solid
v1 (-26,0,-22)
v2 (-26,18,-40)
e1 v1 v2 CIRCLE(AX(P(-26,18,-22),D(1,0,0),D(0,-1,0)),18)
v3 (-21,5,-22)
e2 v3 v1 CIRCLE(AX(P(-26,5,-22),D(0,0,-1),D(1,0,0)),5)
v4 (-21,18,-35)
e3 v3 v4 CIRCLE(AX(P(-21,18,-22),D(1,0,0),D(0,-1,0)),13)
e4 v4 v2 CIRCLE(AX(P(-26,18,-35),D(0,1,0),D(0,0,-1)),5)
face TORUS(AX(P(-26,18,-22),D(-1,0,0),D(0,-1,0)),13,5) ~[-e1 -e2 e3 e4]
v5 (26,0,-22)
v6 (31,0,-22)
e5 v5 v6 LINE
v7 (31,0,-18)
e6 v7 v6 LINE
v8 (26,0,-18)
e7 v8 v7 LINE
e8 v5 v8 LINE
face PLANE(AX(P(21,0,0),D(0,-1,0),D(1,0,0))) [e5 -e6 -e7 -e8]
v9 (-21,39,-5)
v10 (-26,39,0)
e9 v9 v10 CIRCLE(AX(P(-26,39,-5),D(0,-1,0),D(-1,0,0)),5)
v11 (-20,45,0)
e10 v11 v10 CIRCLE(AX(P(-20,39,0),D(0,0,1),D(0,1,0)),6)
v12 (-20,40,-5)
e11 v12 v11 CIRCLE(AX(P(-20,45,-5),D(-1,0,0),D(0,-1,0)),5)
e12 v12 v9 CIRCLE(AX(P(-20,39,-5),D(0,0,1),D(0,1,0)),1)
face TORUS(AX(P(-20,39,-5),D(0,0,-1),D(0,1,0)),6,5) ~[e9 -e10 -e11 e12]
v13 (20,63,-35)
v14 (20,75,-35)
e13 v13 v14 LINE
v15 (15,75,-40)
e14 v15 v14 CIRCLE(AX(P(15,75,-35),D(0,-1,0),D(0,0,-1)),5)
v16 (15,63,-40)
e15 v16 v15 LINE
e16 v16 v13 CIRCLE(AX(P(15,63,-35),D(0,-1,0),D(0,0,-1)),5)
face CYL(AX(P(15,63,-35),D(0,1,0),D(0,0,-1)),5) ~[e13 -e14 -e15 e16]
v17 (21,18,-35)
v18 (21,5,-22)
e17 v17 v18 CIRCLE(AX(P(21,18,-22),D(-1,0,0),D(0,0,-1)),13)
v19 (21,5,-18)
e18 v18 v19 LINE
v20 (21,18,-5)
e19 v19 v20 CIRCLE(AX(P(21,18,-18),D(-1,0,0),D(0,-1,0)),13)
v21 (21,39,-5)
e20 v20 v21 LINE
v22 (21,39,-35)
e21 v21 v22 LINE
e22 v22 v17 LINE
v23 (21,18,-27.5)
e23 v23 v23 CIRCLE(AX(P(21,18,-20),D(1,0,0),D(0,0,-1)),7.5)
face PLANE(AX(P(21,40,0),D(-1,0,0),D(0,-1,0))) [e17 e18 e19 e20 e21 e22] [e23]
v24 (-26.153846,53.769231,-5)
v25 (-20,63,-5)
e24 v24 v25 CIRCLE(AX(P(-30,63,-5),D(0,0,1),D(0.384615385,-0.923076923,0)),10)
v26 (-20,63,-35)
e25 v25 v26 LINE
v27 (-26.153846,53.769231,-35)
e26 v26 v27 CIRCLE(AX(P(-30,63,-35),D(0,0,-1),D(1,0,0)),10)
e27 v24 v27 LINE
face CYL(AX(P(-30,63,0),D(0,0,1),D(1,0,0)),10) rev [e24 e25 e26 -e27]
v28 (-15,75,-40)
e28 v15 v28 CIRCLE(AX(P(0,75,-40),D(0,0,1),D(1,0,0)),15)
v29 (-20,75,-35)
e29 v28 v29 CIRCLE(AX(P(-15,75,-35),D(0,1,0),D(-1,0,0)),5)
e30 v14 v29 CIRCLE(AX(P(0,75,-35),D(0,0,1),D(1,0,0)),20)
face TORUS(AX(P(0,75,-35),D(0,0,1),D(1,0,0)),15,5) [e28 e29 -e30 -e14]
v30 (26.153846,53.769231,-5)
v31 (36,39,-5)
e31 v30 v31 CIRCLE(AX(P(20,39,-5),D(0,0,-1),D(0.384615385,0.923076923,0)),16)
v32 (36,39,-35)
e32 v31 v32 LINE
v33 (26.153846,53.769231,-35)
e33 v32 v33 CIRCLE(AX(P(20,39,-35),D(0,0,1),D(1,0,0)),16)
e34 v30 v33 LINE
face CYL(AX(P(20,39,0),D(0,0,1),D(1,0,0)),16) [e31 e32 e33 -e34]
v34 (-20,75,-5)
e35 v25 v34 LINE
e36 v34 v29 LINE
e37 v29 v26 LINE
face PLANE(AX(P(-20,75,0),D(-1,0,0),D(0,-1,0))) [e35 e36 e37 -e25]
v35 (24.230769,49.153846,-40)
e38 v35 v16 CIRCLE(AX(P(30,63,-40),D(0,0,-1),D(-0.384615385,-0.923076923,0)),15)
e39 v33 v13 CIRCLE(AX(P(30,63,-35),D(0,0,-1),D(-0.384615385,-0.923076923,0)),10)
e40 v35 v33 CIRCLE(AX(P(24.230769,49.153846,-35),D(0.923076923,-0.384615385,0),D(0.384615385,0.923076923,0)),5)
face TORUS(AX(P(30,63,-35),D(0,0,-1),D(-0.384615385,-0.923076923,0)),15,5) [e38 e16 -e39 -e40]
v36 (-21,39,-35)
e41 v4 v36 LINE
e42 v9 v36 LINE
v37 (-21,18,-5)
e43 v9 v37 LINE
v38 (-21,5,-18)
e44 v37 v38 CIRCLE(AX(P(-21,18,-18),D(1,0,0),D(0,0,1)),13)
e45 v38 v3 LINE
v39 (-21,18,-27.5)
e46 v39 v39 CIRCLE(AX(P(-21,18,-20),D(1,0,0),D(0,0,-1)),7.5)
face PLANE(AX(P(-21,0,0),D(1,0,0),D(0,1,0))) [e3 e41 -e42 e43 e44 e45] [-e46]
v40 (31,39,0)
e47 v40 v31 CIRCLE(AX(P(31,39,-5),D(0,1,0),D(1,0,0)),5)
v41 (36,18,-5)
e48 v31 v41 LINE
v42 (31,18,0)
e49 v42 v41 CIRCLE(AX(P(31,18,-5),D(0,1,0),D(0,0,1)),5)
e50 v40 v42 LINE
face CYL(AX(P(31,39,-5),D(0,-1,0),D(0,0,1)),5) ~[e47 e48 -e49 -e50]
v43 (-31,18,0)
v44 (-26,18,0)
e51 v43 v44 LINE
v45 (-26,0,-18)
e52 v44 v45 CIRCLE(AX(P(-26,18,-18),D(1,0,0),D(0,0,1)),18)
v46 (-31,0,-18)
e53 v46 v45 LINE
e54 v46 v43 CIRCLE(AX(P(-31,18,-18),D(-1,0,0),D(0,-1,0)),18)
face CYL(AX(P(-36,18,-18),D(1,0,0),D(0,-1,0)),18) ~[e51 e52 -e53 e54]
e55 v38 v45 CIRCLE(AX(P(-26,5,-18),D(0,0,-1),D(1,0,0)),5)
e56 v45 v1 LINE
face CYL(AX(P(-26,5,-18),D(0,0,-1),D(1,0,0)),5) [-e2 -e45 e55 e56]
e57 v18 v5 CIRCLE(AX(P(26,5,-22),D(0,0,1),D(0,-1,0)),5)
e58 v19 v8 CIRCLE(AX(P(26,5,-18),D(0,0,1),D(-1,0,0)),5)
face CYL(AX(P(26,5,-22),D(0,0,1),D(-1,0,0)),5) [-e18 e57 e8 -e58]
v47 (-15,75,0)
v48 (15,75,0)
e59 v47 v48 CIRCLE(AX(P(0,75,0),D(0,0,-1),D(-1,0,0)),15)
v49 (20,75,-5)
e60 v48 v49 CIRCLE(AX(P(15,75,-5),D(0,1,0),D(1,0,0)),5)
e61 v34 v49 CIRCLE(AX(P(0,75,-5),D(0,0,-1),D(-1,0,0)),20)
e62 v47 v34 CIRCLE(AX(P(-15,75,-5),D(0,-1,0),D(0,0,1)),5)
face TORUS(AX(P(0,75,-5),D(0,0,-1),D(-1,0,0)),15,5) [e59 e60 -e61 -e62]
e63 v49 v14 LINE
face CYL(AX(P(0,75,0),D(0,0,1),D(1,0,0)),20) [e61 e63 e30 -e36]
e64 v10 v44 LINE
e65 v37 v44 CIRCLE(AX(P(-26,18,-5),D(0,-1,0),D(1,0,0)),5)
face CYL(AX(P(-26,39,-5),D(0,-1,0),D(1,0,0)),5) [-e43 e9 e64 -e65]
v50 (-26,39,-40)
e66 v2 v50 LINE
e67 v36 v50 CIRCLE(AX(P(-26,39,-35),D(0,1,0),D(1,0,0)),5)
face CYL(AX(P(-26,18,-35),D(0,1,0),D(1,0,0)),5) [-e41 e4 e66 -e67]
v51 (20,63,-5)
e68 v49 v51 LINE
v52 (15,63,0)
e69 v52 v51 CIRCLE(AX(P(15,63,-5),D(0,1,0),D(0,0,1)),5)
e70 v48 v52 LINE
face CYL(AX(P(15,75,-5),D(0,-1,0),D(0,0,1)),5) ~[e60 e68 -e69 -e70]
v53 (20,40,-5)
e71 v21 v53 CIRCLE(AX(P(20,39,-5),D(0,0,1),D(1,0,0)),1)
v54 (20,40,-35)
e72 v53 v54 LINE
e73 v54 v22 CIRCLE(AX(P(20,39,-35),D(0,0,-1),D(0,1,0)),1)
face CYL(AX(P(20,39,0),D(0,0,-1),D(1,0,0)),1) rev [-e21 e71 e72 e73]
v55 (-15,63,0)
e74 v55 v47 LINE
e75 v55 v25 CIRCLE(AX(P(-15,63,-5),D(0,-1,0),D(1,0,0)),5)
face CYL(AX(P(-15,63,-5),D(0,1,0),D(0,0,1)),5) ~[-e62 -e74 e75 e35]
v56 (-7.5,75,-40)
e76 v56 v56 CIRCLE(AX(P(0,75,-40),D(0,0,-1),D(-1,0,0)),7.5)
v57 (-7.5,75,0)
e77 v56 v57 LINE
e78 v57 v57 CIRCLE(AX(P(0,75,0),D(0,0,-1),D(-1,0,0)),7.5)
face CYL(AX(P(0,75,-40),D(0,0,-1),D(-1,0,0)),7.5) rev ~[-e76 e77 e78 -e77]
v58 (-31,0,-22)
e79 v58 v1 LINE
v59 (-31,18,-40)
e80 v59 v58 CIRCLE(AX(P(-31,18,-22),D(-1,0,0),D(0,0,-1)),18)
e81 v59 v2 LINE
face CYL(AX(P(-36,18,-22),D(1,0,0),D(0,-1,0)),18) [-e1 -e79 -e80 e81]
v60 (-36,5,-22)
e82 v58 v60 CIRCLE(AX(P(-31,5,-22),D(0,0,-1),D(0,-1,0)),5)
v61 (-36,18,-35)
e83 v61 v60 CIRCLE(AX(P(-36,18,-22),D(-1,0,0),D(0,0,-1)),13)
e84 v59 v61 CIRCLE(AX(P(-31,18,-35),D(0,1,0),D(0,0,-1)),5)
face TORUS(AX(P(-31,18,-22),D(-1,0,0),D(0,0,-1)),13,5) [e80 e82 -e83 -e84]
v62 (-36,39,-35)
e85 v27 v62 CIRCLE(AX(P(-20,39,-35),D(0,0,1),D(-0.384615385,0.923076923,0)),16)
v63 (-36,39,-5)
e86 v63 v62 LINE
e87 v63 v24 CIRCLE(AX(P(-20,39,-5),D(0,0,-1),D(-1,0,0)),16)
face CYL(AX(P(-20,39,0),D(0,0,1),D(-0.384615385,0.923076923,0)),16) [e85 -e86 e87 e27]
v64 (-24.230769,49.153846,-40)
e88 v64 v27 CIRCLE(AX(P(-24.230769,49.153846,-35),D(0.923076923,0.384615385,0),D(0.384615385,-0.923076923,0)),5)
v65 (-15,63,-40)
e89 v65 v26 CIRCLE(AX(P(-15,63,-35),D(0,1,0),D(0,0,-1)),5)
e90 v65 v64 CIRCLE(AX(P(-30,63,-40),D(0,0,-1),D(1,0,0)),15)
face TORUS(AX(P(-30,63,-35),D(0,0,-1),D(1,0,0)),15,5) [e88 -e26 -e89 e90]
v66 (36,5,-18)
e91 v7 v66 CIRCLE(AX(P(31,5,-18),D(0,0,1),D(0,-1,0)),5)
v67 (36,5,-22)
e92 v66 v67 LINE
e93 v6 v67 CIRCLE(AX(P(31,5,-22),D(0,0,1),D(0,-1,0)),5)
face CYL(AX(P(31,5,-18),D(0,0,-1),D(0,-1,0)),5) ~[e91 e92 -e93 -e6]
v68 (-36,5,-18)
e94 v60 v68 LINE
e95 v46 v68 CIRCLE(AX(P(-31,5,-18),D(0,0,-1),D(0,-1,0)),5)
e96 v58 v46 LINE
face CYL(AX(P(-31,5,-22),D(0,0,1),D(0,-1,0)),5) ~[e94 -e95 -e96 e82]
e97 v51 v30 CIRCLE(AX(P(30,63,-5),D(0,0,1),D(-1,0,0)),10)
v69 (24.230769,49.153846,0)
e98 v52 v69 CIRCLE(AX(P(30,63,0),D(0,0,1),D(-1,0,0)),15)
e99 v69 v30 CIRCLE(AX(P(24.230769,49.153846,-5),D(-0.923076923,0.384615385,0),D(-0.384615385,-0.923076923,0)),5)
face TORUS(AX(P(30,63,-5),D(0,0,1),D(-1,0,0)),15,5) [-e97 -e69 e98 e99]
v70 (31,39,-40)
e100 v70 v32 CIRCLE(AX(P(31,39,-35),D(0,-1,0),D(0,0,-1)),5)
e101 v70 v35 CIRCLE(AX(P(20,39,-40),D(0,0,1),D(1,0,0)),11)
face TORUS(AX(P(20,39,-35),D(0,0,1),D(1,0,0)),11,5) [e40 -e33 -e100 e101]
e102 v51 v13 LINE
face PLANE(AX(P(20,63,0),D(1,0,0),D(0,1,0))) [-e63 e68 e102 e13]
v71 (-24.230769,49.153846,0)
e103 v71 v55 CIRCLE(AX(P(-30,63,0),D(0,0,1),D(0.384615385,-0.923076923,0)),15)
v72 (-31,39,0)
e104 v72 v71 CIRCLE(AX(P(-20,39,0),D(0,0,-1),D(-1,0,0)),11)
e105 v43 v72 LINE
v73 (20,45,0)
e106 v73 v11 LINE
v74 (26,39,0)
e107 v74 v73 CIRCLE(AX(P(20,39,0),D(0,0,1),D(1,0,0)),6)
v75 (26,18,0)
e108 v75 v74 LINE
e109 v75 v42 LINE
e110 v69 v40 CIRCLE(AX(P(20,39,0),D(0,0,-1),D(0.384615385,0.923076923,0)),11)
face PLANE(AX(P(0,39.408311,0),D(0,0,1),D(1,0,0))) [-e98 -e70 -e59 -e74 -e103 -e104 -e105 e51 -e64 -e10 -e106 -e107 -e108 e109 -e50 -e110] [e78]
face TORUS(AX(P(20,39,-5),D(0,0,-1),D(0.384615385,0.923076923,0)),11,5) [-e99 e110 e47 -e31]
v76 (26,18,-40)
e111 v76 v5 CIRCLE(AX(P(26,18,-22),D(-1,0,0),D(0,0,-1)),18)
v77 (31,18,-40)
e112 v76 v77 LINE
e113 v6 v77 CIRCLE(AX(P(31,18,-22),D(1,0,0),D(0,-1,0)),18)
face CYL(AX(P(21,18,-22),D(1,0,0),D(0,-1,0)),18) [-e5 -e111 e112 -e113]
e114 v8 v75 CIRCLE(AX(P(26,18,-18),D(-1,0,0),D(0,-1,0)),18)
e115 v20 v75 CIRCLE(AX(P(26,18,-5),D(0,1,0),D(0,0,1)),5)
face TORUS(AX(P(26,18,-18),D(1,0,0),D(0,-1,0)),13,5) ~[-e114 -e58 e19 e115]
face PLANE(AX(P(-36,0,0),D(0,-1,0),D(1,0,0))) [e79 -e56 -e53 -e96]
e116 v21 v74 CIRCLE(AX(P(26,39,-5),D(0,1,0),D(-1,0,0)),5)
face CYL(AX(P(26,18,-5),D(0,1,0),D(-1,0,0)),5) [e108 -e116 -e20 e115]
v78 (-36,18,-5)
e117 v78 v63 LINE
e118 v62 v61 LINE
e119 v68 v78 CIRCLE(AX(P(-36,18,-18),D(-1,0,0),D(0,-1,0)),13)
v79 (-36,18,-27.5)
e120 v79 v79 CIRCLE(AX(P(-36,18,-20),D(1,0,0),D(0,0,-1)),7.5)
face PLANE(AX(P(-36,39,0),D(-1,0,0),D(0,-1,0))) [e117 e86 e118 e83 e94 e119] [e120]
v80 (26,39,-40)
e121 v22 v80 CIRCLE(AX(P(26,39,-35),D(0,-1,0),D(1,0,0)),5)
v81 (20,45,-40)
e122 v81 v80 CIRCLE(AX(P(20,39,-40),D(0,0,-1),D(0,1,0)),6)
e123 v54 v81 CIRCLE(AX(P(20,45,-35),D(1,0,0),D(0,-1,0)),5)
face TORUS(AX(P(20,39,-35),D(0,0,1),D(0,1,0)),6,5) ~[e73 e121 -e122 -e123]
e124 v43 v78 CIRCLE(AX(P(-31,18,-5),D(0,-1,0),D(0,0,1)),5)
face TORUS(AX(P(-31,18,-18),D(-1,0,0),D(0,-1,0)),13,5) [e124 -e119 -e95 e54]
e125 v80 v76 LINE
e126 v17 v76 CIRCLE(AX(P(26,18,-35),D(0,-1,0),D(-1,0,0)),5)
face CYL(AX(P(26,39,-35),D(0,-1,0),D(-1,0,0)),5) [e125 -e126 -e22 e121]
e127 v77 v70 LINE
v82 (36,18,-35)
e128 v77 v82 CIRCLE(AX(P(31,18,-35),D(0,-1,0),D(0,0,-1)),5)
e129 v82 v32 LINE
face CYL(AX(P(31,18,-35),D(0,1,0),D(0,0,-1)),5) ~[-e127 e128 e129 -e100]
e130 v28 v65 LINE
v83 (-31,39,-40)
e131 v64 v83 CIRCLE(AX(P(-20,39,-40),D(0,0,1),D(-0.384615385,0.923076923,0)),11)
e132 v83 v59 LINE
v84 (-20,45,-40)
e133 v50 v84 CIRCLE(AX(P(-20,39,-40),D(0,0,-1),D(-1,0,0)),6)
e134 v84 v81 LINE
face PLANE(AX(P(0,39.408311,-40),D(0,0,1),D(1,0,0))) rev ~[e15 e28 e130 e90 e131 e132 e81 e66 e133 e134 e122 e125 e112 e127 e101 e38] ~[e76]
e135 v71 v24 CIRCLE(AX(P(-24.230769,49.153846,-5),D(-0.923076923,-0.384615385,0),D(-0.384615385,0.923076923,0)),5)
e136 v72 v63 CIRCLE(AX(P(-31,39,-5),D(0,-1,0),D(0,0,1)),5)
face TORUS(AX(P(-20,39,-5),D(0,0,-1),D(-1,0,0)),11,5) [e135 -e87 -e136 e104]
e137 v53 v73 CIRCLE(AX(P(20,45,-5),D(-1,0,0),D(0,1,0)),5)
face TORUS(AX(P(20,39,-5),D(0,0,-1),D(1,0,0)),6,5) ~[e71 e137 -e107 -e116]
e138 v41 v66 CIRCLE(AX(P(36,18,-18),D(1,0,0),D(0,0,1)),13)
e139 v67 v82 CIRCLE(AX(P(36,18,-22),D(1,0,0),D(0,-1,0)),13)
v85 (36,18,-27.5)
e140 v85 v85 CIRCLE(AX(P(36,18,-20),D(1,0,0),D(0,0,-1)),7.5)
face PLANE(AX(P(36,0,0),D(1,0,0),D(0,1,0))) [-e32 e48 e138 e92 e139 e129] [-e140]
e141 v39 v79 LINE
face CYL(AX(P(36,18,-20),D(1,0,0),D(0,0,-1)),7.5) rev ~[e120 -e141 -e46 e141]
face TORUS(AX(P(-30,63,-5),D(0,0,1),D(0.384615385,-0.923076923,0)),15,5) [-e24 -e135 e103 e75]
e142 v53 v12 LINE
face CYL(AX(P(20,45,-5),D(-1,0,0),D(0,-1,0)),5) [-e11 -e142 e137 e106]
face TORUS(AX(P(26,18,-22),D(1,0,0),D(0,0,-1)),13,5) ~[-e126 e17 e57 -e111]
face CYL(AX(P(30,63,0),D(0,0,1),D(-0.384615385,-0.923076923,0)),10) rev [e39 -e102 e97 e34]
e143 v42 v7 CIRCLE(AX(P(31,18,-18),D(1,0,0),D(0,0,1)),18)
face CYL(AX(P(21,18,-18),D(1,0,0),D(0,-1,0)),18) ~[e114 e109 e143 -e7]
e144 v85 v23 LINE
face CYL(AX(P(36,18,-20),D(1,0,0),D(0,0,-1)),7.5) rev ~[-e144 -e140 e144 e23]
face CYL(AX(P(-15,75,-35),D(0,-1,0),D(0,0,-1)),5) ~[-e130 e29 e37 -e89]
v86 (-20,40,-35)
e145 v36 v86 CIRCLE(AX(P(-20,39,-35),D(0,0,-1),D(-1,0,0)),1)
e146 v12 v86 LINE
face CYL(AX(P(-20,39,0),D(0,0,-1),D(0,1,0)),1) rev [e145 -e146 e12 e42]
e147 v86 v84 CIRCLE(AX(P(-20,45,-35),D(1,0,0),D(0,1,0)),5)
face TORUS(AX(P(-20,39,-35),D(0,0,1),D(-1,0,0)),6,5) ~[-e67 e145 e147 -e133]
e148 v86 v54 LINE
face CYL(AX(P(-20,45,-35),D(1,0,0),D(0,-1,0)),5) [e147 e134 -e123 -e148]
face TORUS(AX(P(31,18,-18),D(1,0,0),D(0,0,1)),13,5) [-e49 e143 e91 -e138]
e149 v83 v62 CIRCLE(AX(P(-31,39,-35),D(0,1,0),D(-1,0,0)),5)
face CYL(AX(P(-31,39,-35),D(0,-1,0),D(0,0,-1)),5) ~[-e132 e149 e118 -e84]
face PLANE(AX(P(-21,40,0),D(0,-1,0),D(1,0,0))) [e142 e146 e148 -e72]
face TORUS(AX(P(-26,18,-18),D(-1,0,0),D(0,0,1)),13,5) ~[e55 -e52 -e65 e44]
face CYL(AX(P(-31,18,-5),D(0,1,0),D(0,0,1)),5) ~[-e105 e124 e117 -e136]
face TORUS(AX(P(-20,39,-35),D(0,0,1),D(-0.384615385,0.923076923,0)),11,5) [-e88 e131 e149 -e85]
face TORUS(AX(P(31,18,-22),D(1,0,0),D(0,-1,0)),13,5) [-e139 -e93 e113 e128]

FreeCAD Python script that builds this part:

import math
import FreeCAD as App
import Part
import Sketcher
from FreeCAD import Vector


def edges_at(feature, points):
    """Names of the edges that pass closest to the given points."""
    edges = feature.Shape.Edges
    near = lambda p: min(range(len(edges)), key=lambda i: edges[i].distToShape(Part.Vertex(*p))[0])
    return sorted({f"Edge{near(p) + 1}" for p in points})

doc = App.newDocument("Part")
params = doc.addObject("Spreadsheet::Sheet", "Params")
for row, (alias, value) in enumerate([
    ("sketch1_radius", "16 mm"),
    ("sketch1_radius2", "10 mm"),
    ("sketch1_radius3", "20 mm"),
    ("sketch1_width", "42 mm"),
    ("sketch1_height", "40 mm"),
    ("pad1_length", "40 mm"),
    ("fillet_radius", "18 mm"),
    ("sketch2_diameter", "15 mm"),
    ("sketch3_diameter", "15 mm"),
    ("fillet2_radius", "1 mm"),
    ("fillet3_radius", "5 mm"),
], start=1):
    params.set(f"A{row}", alias)
    params.set(f"B{row}", "=" + value)
    params.setAlias(f"B{row}", alias)

body = doc.addObject("PartDesign::Body", "Body")

# Sketch on XY plane
sketch1 = body.newObject("Sketcher::SketchObject", "Sketch")
sketch1.AttachmentSupport = (doc.getObject("XY_Plane"), [""])
sketch1.MapMode = "FlatFace"
sketch1.addGeometry(Part.LineSegment(Vector(-21, 40, 0), Vector(21, 40, 0)), False)
sketch1.addGeometry(Part.LineSegment(Vector(21, 40, 0), Vector(21, 0, 0)), False)
sketch1.addGeometry(Part.LineSegment(Vector(21, 0, 0), Vector(36, 0, 0)), False)
sketch1.addGeometry(Part.LineSegment(Vector(36, 0, 0), Vector(36, 39, 0)), False)
sketch1.addGeometry(Part.ArcOfCircle(Part.Circle(Vector(20, 39, 0), Vector(0, 0, 1), 16), math.radians(0), math.radians(67.380135)), False)
sketch1.addGeometry(Part.ArcOfCircle(Part.Circle(Vector(30, 63, 0), Vector(0, 0, 1), 10), math.radians(-180), math.radians(-112.619865)), False)
sketch1.addGeometry(Part.LineSegment(Vector(20, 63, 0), Vector(20, 75, 0)), False)
sketch1.addGeometry(Part.ArcOfCircle(Part.Circle(Vector(0, 75, 0), Vector(0, 0, 1), 20), math.radians(0), math.radians(180)), False)
sketch1.addGeometry(Part.LineSegment(Vector(-20, 75, 0), Vector(-20, 63, 0)), False)
sketch1.addGeometry(Part.ArcOfCircle(Part.Circle(Vector(-30, 63, 0), Vector(0, 0, 1), 10), math.radians(-67.380135), math.radians(0)), False)
sketch1.addGeometry(Part.ArcOfCircle(Part.Circle(Vector(-20, 39, 0), Vector(0, 0, 1), 16), math.radians(112.619865), math.radians(180)), False)
sketch1.addGeometry(Part.LineSegment(Vector(-36, 39, 0), Vector(-36, 0, 0)), False)
sketch1.addGeometry(Part.LineSegment(Vector(-36, 0, 0), Vector(-21, 0, 0)), False)
sketch1.addGeometry(Part.LineSegment(Vector(-21, 0, 0), Vector(-21, 40, 0)), False)
sketch1.addConstraint(Sketcher.Constraint("Coincident", 0, 2, 1, 1))
sketch1.addConstraint(Sketcher.Constraint("Coincident", 1, 2, 2, 1))
sketch1.addConstraint(Sketcher.Constraint("Coincident", 2, 2, 3, 1))
sketch1.addConstraint(Sketcher.Constraint("Tangent", 3, 2, 4, 1))
sketch1.addConstraint(Sketcher.Constraint("Tangent", 4, 2, 5, 2))
sketch1.addConstraint(Sketcher.Constraint("Tangent", 5, 1, 6, 1))
sketch1.addConstraint(Sketcher.Constraint("Tangent", 6, 2, 7, 1))
sketch1.addConstraint(Sketcher.Constraint("Tangent", 7, 2, 8, 1))
sketch1.addConstraint(Sketcher.Constraint("Tangent", 8, 2, 9, 2))
sketch1.addConstraint(Sketcher.Constraint("Tangent", 9, 1, 10, 1))
sketch1.addConstraint(Sketcher.Constraint("Tangent", 10, 2, 11, 1))
sketch1.addConstraint(Sketcher.Constraint("Coincident", 11, 2, 12, 1))
sketch1.addConstraint(Sketcher.Constraint("Coincident", 12, 2, 13, 1))
sketch1.addConstraint(Sketcher.Constraint("Coincident", 13, 2, 0, 1))
sketch1.addConstraint(Sketcher.Constraint("Horizontal", 0))
sketch1.addConstraint(Sketcher.Constraint("Vertical", 1))
sketch1.addConstraint(Sketcher.Constraint("Horizontal", 2))
sketch1.addConstraint(Sketcher.Constraint("Vertical", 3))
sketch1.addConstraint(Sketcher.Constraint("Vertical", 6))
sketch1.addConstraint(Sketcher.Constraint("Vertical", 8))
sketch1.addConstraint(Sketcher.Constraint("Vertical", 11))
sketch1.addConstraint(Sketcher.Constraint("Horizontal", 12))
sketch1.addConstraint(Sketcher.Constraint("Vertical", 13))
sketch1.addConstraint(Sketcher.Constraint("Equal", 5, 9))
sketch1.addConstraint(Sketcher.Constraint("Equal", 4, 10))
sketch1.addConstraint(Sketcher.Constraint("Symmetric", 2, 2, 11, 2, -1, 1))
sketch1.addConstraint(Sketcher.Constraint("Symmetric", 5, 3, 9, 3, -2))
sketch1.addConstraint(Sketcher.Constraint("Symmetric", 1, 2, 12, 2, -2))
sketch1.addConstraint(Sketcher.Constraint("Vertical", 4, 3, 5, 1))
sketch1.addConstraint(Sketcher.Constraint("Radius", 4, 16.0))
sketch1.addConstraint(Sketcher.Constraint("Radius", 5, 10.0))
sketch1.addConstraint(Sketcher.Constraint("Radius", 7, 20.0))
sketch1.addConstraint(Sketcher.Constraint("DistanceX", 0, 1, 0, 2, 42.0))
sketch1.addConstraint(Sketcher.Constraint("DistanceY", 1, 2, 1, 1, 40.0))
sketch1.addConstraint(Sketcher.Constraint("DistanceY", 3, 1, 3, 2, 39.0))
sketch1.addConstraint(Sketcher.Constraint("DistanceY", 6, 1, 6, 2, 12.0))
sketch1.setExpression("Constraints[29]", "Params.sketch1_radius")
sketch1.setExpression("Constraints[30]", "Params.sketch1_radius2")
sketch1.setExpression("Constraints[31]", "Params.sketch1_radius3")
sketch1.setExpression("Constraints[32]", "Params.sketch1_width")
sketch1.setExpression("Constraints[33]", "Params.sketch1_height")
pad1 = body.newObject("PartDesign::Pad", "Pad")
pad1.Profile = sketch1
pad1.setExpression("Length", "Params.pad1_length")
pad1.Reversed = True
doc.recompute()

fillet = body.newObject("PartDesign::Fillet", "Fillet")
fillet.Base = (pad1, edges_at(pad1, [
    (28.5, 0, 0),
    (-28.5, 0, 0),
    (-28.5, 0, -40),
    (28.5, 0, -40),
]))
fillet.setExpression("Radius", "Params.fillet_radius")

# Sketch on YZ plane
sketch2 = body.newObject("Sketcher::SketchObject", "Sketch001")
sketch2.AttachmentSupport = (doc.getObject("YZ_Plane"), [""])
sketch2.MapMode = "FlatFace"
sketch2.AttachmentOffset = App.Placement(Vector(0, 0, 36), App.Rotation())
sketch2.addGeometry(Part.Circle(Vector(18, -20, 0), Vector(0, 0, 1), 7.5), False)
sketch2.addConstraint(Sketcher.Constraint("Diameter", 0, 15.0))
sketch2.addConstraint(Sketcher.Constraint("DistanceX", -1, 1, 0, 3, 18.0))
sketch2.addConstraint(Sketcher.Constraint("DistanceY", 0, 3, -1, 1, 20.0))
sketch2.setExpression("Constraints[0]", "Params.sketch2_diameter")
pocket1 = body.newObject("PartDesign::Pocket", "Pocket")
pocket1.Profile = sketch2
pocket1.Type = "ThroughAll"

# Sketch on XY plane
sketch3 = body.newObject("Sketcher::SketchObject", "Sketch002")
sketch3.AttachmentSupport = (doc.getObject("XY_Plane"), [""])
sketch3.MapMode = "FlatFace"
sketch3.AttachmentOffset = App.Placement(Vector(0, 0, -40), App.Rotation())
sketch3.addGeometry(Part.Circle(Vector(0, 75, 0), Vector(0, 0, 1), 7.5), False)
sketch3.addConstraint(Sketcher.Constraint("PointOnObject", 0, 3, -2))
sketch3.addConstraint(Sketcher.Constraint("Diameter", 0, 15.0))
sketch3.addConstraint(Sketcher.Constraint("DistanceY", -1, 1, 0, 3, 75.0))
sketch3.setExpression("Constraints[1]", "Params.sketch3_diameter")
pocket2 = body.newObject("PartDesign::Pocket", "Pocket001")
pocket2.Profile = sketch3
pocket2.Type = "ThroughAll"
pocket2.Reversed = True
doc.recompute()

fillet2 = body.newObject("PartDesign::Fillet", "Fillet001")
fillet2.Base = (pocket2, edges_at(pocket2, [(21, 40, -20), (-21, 40, -20)]))
fillet2.setExpression("Radius", "Params.fillet2_radius")
doc.recompute()

fillet3 = body.newObject("PartDesign::Fillet", "Fillet002")
fillet3.Base = (fillet2, edges_at(fillet2, [
    (20, 69, -40),
    (0, 95, -40),
    (-36, 28.5, 0),
    (-33.313, 47.875, 0),
    (-21.679, 57.453, 0),
    (-20, 69, -40),
    (-20, 69, 0),
    (0, 95, 0),
    (20, 69, 0),
    (21.679, 57.453, 0),
    (33.313, 47.875, 0),
    (-21.679, 57.453, -40),
    (-33.313, 47.875, -40),
    (-36, 28.5, -40),
    (33.313, 47.875, -40),
    (-36, 0, -20),
    (-21, 0, -20),
    (-21, 28.5, 0),
    (-21, 28.5, -40),
    (-21, 5.272, -5.272),
    (-21, 5.272, -34.728),
    (36, 28.5, -40),
    (-36, 5.272, -5.272),
    (-36, 5.272, -34.728),
    (21, 0, -20),
    (36, 0, -20),
    (36, 28.5, 0),
    (36, 5.272, -5.272),
    (36, 5.272, -34.728),
    (21, 5.272, -5.272),
    (21, 5.272, -34.728),
    (21.679, 57.453, -40),
    (0, 40, 0),
    (0, 40, -40),
    (21, 28.5, -40),
    (21, 28.5, 0),
    (-20.707, 39.707, 0),
    (-20.707, 39.707, -40),
    (20.707, 39.707, 0),
    (20.707, 39.707, -40),
]))
fillet3.setExpression("Radius", "Params.fillet3_radius")

doc.recompute()
